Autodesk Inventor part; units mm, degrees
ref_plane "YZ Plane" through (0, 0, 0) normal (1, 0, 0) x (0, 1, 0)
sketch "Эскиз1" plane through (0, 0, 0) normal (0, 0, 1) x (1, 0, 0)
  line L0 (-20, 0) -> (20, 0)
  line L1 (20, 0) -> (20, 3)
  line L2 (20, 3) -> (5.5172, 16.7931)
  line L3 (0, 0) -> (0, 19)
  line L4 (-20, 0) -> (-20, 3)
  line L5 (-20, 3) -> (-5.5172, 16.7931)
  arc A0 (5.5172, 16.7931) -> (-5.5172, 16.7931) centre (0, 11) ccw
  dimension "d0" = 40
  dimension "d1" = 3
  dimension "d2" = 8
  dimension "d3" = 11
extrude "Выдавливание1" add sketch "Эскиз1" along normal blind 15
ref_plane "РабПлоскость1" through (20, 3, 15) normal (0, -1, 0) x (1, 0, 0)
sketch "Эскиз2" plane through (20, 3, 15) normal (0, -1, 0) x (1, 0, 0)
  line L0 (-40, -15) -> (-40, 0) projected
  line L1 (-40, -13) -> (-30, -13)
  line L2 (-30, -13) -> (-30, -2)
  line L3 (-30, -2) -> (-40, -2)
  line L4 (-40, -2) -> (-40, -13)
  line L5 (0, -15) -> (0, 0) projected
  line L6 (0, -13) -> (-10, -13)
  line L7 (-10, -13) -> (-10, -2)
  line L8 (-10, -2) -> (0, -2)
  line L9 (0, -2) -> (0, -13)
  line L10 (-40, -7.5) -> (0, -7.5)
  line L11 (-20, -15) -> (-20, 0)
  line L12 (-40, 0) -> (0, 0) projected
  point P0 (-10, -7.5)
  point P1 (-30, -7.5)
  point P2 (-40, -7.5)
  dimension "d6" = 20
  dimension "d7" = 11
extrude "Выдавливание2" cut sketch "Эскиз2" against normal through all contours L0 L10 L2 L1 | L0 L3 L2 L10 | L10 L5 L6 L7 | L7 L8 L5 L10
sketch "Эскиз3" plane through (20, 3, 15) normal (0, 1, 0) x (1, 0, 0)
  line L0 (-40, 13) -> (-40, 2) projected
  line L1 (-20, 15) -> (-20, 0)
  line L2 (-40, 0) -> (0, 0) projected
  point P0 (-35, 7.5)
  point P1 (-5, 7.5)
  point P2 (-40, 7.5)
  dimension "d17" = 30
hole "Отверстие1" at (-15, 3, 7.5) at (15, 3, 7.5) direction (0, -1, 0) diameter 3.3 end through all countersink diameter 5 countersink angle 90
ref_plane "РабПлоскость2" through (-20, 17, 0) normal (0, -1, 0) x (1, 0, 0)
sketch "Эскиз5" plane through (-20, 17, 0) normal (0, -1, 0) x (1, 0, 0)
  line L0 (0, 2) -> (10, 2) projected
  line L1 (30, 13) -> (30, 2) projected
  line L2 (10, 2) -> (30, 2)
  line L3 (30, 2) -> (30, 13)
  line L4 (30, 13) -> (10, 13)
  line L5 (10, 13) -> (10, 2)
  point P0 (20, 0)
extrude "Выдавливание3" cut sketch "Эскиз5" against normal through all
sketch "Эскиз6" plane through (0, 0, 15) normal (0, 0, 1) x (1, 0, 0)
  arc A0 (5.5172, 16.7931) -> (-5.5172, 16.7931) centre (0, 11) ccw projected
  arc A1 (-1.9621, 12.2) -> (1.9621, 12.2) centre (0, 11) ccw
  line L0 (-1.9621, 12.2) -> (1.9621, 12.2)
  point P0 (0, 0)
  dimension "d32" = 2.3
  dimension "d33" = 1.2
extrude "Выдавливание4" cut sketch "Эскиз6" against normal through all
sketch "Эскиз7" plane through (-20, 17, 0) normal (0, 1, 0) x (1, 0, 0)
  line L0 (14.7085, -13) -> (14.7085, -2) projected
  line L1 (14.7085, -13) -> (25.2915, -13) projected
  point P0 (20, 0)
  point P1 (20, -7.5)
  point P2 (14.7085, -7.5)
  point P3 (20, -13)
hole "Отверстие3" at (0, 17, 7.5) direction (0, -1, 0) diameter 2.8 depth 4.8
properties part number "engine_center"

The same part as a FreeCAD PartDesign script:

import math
import FreeCAD as App
import Part
import Sketcher
from FreeCAD import Vector
Q = App.Units.Quantity


def add_polygon(sketch, points):
    """Adds a closed chain of lines whose ends are joined by coincident constraints."""
    first, n = sketch.GeometryCount, len(points)
    for a, b in zip(points, points[1:] + points[:1]):
        sketch.addGeometry(Part.LineSegment(App.Vector(*a, 0), App.Vector(*b, 0)), False)
    for i in range(n):
        sketch.addConstraint(Sketcher.Constraint("Coincident", first + i, 2, first + (i + 1) % n, 1))

doc = App.newDocument("Part")
body = doc.addObject("PartDesign::Body", "Body")

# Sketch on XY plane
sketch1 = body.newObject("Sketcher::SketchObject", "Sketch")
sketch1.AttachmentSupport = (doc.getObject("XY_Plane"), [""])
sketch1.MapMode = "FlatFace"
sketch1.addGeometry([
    Part.LineSegment(Vector(-20, 3, 0), Vector(-20, 0, 0)),  # 0
    Part.LineSegment(Vector(-20, 0, 0), Vector(20, 0, 0)),  # 1
    Part.LineSegment(Vector(20, 0, 0), Vector(20, 3, 0)),  # 2
    Part.LineSegment(Vector(20, 3, 0), Vector(5.5, 16.8, 0)),  # 3
    Part.ArcOfCircle(Part.Circle(Vector(0, 11, 0), Vector(0, 0, 1), 8), math.radians(46), math.radians(134)),  # 4
    Part.LineSegment(Vector(-5.5, 16.8, 0), Vector(-20, 3, 0)),  # 5
], False)
sketch1.addConstraint([
    Sketcher.Constraint("Coincident", 0, 2, 1, 1),
    Sketcher.Constraint("Coincident", 1, 2, 2, 1),
    Sketcher.Constraint("Coincident", 2, 2, 3, 1),
    Sketcher.Constraint("Tangent", 3, 2, 4, 1),
    Sketcher.Constraint("Tangent", 4, 2, 5, 1),
    Sketcher.Constraint("Coincident", 5, 2, 0, 1),
    Sketcher.Constraint("Vertical", 0),
    Sketcher.Constraint("Horizontal", 1),
    Sketcher.Constraint("Vertical", 2),
    Sketcher.Constraint("Symmetric", 0, 2, 1, 2, -1, 1),
    Sketcher.Constraint("Symmetric", 3, 2, 4, 2, -2),
    Sketcher.Constraint("Radius", 4, Q("8 mm")),
    Sketcher.Constraint("DistanceX", 1, 1, 1, 2, Q("40 mm")),
    Sketcher.Constraint("DistanceY", 0, 2, 0, 1, Q("3 mm")),
    Sketcher.Constraint("DistanceY", -1, 1, 4, 3, Q("11 mm")),
])
pad1 = body.newObject("PartDesign::Pad", "Pad")
pad1.Profile = sketch1
pad1.Length = 15

# Sketch on XZ plane
sketch2 = body.newObject("Sketcher::SketchObject", "Sketch001")
sketch2.AttachmentSupport = (doc.getObject("XZ_Plane"), [""])
sketch2.MapMode = "FlatFace"
sketch2.AttachmentOffset = App.Placement(Vector(0, 0, -3), App.Rotation())
add_polygon(sketch2, [(-20, 2), (-10, 2), (-10, 13), (-20, 13)])  # lines 0-3
add_polygon(sketch2, [(20, 2), (20, 13), (10, 13), (10, 2)])  # lines 4-7
sketch2.addConstraint([
    Sketcher.Constraint("Horizontal", 0),
    Sketcher.Constraint("Vertical", 1),
    Sketcher.Constraint("Horizontal", 2),
    Sketcher.Constraint("Vertical", 3),
    Sketcher.Constraint("Vertical", 4),
    Sketcher.Constraint("Horizontal", 5),
    Sketcher.Constraint("Vertical", 6),
    Sketcher.Constraint("Horizontal", 7),
    Sketcher.Constraint("Symmetric", 2, 2, 4, 2, -2),
    Sketcher.Constraint("Symmetric", 0, 2, 6, 2, -2),
    Sketcher.Constraint("DistanceY", 1, 1, 1, 2, Q("11 mm")),
    Sketcher.Constraint("DistanceX", 2, 2, -1, 1, Q("20 mm")),
    Sketcher.Constraint("DistanceX", 1, 2, 5, 2, Q("20 mm")),
    Sketcher.Constraint("DistanceY", -1, 1, 0, 2, Q("2 mm")),
])
pocket1 = body.newObject("PartDesign::Pocket", "Pocket")
pocket1.Profile = sketch2
pocket1.Type = "ThroughAll"

# Sketch on XZ plane
sketch3 = body.newObject("Sketcher::SketchObject", "Sketch002")
sketch3.AttachmentSupport = (doc.getObject("XZ_Plane"), [""])
sketch3.MapMode = "FlatFace"
sketch3.AttachmentOffset = App.Placement(Vector(0, 0, -3), App.Rotation())
sketch3.addGeometry([
    Part.Circle(Vector(-15, 7.5, 0), Vector(0, 0, 1), 1.6),
    Part.Circle(Vector(15, 7.5, 0), Vector(0, 0, 1), 1.6),
], False)
sketch3.addConstraint([
    Sketcher.Constraint("Equal", 0, 1),
    Sketcher.Constraint("Symmetric", 0, 3, 1, 3, -2),
    Sketcher.Constraint("Diameter", 0, Q("3.3 mm")),
    Sketcher.Constraint("DistanceX", 0, 3, -1, 1, Q("15 mm")),
    Sketcher.Constraint("DistanceY", -1, 1, 0, 3, Q("7.5 mm")),
])
doc.recompute()
hole = body.newObject("PartDesign::Hole", "Hole")
hole.Profile = sketch3
hole.ThreadType = "None"
hole.Diameter = 3.3
hole.DepthType = "ThroughAll"
hole.HoleCutType = "Countersink"
hole.HoleCutDiameter = 5
hole.HoleCutCountersinkAngle = 90
hole.Reversed = True

# Sketch on XZ plane
sketch4 = body.newObject("Sketcher::SketchObject", "Sketch003")
sketch4.AttachmentSupport = (doc.getObject("XZ_Plane"), [""])
sketch4.MapMode = "FlatFace"
sketch4.AttachmentOffset = App.Placement(Vector(0, 0, -17), App.Rotation())
add_polygon(sketch4, [(10, 2), (10, 13), (-10, 13), (-10, 2)])  # lines 0-3
sketch4.addConstraint([
    Sketcher.Constraint("Vertical", 0),
    Sketcher.Constraint("Horizontal", 1),
    Sketcher.Constraint("Vertical", 2),
    Sketcher.Constraint("Horizontal", 3),
    Sketcher.Constraint("DistanceX", 1, 2, 1, 1, Q("20 mm")),
    Sketcher.Constraint("DistanceY", 0, 1, 0, 2, Q("11 mm")),
    Sketcher.Constraint("DistanceX", -1, 1, 0, 2, Q("10 mm")),
    Sketcher.Constraint("DistanceY", -1, 1, 0, 2, Q("13 mm")),
])
pocket2 = body.newObject("PartDesign::Pocket", "Pocket001")
pocket2.Profile = sketch4
pocket2.Type = "ThroughAll"

# Sketch on XY plane
sketch5 = body.newObject("Sketcher::SketchObject", "Sketch004")
sketch5.AttachmentSupport = (doc.getObject("XY_Plane"), [""])
sketch5.MapMode = "FlatFace"
sketch5.AttachmentOffset = App.Placement(Vector(0, 0, 15), App.Rotation())
sketch5.addGeometry([
    Part.LineSegment(Vector(2, 12.2, 0), Vector(-2, 12.2, 0)),
    Part.ArcOfCircle(Part.Circle(Vector(0, 11, 0), Vector(0, 0, 1), 2.3), math.radians(149), math.radians(391)),
], False)
sketch5.addConstraint([
    Sketcher.Constraint("Coincident", 0, 1, 1, 2),
    Sketcher.Constraint("Coincident", 1, 1, 0, 2),
    Sketcher.Constraint("Horizontal", 0),
    Sketcher.Constraint("PointOnObject", 1, 3, -2),
    Sketcher.Constraint("Radius", 1, Q("2.3 mm")),
    Sketcher.Constraint("DistanceY", 1, 3, 0, 1, Q("1.2 mm")),
    Sketcher.Constraint("DistanceY", -1, 1, 1, 3, Q("11 mm")),
])
pocket3 = body.newObject("PartDesign::Pocket", "Pocket002")
pocket3.Profile = sketch5
pocket3.Type = "ThroughAll"

# Sketch on XZ plane
sketch6 = body.newObject("Sketcher::SketchObject", "Sketch005")
sketch6.AttachmentSupport = (doc.getObject("XZ_Plane"), [""])
sketch6.MapMode = "FlatFace"
sketch6.AttachmentOffset = App.Placement(Vector(0, 0, -17), App.Rotation())
sketch6.addGeometry(Part.Circle(Vector(0, 7.5, 0), Vector(0, 0, 1), 1.4), False)
sketch6.addConstraint([
    Sketcher.Constraint("PointOnObject", 0, 3, -2),
    Sketcher.Constraint("Diameter", 0, Q("2.8 mm")),
    Sketcher.Constraint("DistanceY", -1, 1, 0, 3, Q("7.5 mm")),
])
doc.recompute()
hole2 = body.newObject("PartDesign::Hole", "Hole001")
hole2.Profile = sketch6
hole2.ThreadType = "None"
hole2.Diameter = 2.8
hole2.DepthType = "Dimension"
hole2.Depth = 4.8
hole2.DrillPoint = "Flat"
hole2.Reversed = True

doc.recompute()
